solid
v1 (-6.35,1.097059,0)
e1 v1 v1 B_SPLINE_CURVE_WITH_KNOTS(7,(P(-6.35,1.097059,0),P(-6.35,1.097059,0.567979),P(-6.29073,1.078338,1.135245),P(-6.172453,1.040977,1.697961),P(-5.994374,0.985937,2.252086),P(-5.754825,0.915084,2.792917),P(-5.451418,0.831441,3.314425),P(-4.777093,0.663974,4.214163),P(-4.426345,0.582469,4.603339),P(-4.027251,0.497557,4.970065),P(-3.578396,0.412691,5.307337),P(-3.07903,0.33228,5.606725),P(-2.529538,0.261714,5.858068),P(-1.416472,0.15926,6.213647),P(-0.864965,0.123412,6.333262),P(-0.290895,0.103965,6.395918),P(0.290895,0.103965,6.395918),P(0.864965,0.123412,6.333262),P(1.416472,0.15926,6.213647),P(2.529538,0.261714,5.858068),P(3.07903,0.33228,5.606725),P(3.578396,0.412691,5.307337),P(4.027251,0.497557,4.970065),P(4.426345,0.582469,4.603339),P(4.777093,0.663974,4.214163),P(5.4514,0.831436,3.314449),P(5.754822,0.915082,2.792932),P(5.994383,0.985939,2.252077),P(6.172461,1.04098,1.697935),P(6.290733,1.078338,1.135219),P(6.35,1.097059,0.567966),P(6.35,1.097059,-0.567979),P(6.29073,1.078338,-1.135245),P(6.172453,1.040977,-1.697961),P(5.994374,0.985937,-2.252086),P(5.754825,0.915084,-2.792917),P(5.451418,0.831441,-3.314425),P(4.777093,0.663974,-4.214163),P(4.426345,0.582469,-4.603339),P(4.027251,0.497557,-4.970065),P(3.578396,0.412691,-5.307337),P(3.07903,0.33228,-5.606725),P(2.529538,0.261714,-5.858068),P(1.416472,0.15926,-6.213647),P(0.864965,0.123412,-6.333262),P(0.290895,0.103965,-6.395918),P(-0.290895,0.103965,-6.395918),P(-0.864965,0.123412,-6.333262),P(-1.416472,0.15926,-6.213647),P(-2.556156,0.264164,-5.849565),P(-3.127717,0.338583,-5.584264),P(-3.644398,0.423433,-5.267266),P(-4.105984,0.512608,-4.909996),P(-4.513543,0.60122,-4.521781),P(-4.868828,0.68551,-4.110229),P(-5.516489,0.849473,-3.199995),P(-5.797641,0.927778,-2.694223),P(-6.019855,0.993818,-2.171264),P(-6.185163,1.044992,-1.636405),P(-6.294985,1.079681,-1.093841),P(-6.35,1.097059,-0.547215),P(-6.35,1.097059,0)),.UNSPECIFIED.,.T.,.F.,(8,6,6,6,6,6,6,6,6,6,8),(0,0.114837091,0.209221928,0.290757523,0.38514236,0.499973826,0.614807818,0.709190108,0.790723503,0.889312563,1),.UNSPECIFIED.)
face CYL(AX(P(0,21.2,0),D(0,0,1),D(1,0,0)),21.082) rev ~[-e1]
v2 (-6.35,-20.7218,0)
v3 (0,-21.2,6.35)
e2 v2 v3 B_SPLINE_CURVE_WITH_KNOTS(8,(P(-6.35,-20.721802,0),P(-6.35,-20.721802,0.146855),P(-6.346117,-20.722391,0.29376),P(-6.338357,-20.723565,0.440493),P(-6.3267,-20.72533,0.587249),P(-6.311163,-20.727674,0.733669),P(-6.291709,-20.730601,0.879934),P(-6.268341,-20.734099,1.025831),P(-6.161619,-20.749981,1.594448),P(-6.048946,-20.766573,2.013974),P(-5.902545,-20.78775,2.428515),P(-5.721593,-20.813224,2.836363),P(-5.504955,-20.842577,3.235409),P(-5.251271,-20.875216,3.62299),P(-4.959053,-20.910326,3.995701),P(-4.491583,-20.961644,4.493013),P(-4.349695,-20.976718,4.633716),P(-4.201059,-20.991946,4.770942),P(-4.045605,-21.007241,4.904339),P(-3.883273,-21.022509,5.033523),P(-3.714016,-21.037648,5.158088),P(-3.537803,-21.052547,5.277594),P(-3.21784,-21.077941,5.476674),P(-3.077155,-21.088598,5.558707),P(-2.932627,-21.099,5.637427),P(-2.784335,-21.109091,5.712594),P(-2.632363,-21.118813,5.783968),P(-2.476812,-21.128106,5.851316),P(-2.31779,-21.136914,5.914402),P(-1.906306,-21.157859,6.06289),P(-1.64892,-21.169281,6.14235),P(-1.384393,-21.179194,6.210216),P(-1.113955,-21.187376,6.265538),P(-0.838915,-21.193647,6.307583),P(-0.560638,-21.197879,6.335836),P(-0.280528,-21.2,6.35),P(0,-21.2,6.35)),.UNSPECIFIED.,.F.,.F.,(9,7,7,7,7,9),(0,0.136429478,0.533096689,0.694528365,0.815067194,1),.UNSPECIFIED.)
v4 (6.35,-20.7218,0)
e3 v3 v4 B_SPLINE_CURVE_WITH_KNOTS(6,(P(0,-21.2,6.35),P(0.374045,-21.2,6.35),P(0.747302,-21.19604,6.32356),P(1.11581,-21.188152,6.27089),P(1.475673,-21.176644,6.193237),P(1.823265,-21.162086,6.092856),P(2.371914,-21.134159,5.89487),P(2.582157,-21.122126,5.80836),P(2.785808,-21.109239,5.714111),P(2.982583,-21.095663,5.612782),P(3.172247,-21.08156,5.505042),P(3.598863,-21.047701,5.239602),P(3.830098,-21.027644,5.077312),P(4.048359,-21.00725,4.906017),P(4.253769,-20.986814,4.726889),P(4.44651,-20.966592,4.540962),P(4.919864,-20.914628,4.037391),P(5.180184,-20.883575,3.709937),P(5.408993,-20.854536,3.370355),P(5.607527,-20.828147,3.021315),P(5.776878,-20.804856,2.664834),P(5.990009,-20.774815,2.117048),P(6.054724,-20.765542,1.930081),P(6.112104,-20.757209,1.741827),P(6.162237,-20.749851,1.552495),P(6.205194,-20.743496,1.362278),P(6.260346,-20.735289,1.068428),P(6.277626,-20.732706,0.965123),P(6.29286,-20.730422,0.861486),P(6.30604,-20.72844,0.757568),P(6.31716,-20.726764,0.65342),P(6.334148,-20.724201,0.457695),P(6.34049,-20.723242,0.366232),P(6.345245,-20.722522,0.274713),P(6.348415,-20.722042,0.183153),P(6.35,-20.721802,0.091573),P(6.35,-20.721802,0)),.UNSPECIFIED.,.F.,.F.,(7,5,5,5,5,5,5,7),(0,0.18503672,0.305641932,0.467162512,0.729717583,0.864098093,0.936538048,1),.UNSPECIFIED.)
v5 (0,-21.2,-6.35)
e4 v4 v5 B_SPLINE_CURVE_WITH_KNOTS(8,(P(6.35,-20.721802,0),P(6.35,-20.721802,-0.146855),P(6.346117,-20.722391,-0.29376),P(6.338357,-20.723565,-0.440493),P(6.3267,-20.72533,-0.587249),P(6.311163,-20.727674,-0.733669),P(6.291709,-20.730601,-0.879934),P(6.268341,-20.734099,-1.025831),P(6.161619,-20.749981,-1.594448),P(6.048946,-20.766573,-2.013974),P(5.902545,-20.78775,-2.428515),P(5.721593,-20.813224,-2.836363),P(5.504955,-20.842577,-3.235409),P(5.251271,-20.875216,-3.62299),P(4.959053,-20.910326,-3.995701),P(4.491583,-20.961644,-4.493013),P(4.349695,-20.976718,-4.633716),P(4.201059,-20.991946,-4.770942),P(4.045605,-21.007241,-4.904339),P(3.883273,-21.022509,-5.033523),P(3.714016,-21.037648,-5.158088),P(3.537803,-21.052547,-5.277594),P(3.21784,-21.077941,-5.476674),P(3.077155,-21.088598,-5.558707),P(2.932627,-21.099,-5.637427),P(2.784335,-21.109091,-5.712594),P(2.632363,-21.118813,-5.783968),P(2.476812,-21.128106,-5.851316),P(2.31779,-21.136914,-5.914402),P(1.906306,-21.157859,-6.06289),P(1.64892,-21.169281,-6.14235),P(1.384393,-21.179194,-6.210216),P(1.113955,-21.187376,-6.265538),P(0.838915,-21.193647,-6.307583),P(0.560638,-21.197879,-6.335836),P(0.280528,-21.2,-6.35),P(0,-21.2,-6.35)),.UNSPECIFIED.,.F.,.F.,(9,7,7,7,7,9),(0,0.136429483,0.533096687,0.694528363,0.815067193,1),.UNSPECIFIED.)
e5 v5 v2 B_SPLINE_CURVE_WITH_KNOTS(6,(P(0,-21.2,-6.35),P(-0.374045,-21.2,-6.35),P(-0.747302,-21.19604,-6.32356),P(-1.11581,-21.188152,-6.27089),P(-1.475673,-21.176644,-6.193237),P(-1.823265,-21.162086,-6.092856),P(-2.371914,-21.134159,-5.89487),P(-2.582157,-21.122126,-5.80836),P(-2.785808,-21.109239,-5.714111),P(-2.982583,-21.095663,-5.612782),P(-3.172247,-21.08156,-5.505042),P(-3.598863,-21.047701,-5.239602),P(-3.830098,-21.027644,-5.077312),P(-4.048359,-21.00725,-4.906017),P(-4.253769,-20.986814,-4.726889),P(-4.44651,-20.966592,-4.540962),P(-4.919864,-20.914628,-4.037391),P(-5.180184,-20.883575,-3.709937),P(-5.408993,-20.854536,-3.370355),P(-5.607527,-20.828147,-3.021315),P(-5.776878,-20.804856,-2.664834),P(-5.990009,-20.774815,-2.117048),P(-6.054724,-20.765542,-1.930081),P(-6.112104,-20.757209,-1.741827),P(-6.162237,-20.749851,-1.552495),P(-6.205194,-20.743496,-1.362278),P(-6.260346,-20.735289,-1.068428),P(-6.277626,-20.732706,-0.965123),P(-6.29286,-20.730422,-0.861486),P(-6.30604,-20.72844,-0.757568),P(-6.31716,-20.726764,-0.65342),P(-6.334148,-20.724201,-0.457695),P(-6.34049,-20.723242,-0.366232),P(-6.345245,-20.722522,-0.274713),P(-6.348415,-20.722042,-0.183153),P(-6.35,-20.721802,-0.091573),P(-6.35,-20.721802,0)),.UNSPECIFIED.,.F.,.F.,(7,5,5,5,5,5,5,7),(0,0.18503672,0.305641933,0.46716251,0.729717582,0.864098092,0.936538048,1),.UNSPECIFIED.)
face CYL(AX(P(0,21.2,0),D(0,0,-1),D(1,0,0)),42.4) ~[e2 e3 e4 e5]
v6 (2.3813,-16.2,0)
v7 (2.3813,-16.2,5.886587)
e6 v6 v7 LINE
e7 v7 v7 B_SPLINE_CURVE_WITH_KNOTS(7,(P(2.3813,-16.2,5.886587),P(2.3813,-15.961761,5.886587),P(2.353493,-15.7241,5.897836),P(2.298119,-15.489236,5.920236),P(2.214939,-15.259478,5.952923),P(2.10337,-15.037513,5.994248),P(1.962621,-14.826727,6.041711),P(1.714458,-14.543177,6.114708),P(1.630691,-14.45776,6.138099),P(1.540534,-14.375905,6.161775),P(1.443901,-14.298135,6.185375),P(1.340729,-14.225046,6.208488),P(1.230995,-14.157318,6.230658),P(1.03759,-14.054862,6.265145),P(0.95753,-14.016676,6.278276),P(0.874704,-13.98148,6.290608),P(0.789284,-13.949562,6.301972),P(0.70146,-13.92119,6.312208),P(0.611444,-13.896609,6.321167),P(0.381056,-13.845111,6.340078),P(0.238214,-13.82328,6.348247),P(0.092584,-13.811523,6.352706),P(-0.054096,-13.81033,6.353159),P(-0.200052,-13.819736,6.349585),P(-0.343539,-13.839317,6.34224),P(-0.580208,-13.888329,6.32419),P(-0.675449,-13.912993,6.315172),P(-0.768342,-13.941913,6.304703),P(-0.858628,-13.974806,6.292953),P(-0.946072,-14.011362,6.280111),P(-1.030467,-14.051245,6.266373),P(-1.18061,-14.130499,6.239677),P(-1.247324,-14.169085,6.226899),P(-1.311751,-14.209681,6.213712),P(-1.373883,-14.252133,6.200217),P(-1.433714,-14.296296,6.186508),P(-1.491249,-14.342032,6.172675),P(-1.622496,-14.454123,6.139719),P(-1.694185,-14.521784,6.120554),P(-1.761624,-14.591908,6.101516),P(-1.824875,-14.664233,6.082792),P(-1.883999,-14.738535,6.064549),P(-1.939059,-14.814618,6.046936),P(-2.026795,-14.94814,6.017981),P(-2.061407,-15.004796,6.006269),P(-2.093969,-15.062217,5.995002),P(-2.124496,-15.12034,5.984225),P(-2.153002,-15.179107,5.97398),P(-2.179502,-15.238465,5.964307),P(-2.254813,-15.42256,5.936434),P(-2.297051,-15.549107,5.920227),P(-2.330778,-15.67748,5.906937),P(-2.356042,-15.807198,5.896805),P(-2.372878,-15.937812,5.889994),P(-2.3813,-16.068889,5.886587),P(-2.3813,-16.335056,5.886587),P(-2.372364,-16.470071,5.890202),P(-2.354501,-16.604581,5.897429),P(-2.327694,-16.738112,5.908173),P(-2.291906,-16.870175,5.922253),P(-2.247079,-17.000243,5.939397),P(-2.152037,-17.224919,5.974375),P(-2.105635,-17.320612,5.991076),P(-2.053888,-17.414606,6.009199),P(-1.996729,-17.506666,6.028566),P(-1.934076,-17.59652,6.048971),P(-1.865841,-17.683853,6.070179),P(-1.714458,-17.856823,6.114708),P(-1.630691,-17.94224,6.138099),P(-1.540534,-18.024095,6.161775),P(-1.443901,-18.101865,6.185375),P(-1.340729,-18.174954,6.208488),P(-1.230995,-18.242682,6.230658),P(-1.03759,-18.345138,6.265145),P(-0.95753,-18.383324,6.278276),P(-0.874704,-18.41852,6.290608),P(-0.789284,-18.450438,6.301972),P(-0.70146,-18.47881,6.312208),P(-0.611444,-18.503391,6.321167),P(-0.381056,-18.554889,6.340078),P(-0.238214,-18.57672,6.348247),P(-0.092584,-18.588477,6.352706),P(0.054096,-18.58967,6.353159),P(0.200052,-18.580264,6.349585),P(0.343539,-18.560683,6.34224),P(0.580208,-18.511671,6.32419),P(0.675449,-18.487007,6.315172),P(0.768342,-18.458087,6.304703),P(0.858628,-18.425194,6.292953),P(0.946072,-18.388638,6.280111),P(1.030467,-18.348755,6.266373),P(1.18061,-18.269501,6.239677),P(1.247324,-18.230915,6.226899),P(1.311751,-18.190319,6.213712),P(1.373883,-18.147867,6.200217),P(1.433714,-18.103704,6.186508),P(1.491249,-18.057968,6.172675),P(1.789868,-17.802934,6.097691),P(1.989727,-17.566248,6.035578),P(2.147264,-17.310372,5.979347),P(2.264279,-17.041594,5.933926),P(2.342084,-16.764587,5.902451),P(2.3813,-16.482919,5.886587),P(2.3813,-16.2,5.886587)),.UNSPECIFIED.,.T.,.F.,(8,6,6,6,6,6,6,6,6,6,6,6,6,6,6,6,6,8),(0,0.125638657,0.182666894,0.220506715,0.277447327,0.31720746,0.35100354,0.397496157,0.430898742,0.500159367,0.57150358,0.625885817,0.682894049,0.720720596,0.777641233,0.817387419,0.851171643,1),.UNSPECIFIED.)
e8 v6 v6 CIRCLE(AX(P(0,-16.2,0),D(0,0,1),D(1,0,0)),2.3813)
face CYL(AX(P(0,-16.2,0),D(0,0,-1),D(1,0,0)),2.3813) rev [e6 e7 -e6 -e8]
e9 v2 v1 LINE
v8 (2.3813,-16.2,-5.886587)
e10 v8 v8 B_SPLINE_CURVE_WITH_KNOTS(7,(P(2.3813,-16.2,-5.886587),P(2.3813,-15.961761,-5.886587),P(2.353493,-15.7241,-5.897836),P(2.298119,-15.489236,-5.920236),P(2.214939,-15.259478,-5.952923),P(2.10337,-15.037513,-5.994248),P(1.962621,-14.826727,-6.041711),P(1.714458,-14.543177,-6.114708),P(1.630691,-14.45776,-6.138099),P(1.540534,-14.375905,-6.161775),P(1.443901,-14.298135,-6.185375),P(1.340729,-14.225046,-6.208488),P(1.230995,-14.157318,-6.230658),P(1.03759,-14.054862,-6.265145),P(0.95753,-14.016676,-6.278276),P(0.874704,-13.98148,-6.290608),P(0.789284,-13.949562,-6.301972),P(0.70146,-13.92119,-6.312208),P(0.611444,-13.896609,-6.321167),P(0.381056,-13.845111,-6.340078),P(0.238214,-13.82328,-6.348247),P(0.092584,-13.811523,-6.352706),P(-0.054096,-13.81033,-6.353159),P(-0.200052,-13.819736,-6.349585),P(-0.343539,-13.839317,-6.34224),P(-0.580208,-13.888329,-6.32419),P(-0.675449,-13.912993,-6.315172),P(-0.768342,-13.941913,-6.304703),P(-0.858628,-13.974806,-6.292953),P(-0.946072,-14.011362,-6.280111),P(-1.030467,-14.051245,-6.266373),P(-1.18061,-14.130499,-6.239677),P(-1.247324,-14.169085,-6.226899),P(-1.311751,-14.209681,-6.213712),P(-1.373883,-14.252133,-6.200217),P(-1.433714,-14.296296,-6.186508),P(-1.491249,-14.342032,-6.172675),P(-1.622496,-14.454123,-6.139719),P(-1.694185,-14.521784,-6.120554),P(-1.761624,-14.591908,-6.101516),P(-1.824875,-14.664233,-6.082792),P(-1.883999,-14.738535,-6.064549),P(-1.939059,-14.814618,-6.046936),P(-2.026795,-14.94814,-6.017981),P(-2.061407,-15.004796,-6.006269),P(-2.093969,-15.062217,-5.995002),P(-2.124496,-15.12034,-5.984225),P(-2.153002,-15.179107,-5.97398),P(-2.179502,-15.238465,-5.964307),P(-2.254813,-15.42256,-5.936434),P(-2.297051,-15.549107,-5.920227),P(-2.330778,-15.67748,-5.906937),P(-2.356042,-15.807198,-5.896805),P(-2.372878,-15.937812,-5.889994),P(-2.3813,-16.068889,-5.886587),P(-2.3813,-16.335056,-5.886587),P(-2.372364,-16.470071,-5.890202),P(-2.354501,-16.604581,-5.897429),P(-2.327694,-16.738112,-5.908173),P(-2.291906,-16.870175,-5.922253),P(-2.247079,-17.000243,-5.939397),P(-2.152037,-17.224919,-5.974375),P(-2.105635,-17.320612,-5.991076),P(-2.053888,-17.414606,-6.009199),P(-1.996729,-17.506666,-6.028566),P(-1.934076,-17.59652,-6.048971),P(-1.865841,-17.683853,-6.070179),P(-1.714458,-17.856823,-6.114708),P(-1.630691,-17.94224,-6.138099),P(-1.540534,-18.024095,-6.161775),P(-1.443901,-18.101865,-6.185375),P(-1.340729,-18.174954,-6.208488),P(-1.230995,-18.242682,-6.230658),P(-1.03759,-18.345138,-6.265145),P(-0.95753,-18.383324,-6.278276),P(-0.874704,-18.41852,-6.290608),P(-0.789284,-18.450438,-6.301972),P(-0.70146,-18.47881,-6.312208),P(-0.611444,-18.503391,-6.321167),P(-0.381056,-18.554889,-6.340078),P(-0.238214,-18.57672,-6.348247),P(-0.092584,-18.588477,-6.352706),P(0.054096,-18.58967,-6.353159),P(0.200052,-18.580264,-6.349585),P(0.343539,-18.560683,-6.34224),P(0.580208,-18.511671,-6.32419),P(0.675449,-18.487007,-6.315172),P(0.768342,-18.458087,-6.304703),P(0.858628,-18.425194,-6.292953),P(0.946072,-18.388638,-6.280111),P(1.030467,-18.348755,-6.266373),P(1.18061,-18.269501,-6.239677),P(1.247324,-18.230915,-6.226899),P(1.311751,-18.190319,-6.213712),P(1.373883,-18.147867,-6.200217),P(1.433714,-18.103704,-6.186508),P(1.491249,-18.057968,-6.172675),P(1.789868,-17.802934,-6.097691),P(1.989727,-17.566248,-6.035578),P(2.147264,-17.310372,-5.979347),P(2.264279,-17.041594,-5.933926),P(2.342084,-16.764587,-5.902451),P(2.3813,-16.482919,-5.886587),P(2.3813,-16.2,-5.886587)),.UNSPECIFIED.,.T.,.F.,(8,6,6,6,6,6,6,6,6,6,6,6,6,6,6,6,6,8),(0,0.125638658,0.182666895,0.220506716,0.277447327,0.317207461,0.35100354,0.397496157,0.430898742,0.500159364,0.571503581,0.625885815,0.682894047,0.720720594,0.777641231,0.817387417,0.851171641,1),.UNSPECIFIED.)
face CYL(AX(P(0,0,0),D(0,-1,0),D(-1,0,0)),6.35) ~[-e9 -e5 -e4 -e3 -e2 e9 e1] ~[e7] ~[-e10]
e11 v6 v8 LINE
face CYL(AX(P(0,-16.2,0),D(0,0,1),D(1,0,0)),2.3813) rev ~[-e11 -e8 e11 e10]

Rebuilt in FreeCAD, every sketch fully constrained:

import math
import FreeCAD as App
import Part
import Sketcher

V = App.Vector
Q = App.Units.Quantity

doc = App.newDocument("Part")
params = doc.addObject("Spreadsheet::Sheet", "Params")
for row, (alias, value) in enumerate([
    ("sketch1_diameter", "0.5 in"),
    ("pad1_length", "1.6692913 in"),
    ("sketch2_diameter", "1.66 in"),
    ("sketch2_diameter2", "0.1875 in"),
    ("sketch2_width", "0.25 in"),
    ("pocket1_length", "7.35 mm"),
    ("pocket1_length2", "7.35 mm"),
], start=1):
    params.set(f"A{row}", alias)
    params.set(f"B{row}", "=" + value)
    params.setAlias(f"B{row}", alias)

body = doc.addObject("PartDesign::Body", "Body")

# Sketch on XZ plane
sketch1 = body.newObject("Sketcher::SketchObject", "Sketch")
sketch1.AttachmentSupport = (doc.getObject("XZ_Plane"), [""])
sketch1.MapMode = "FlatFace"
sketch1.addGeometry(Part.Circle(V(0, 0, 0), V(0, 0, 1), 6), False)
sketch1.addConstraint([
    Sketcher.Constraint("Coincident", 0, 3, -1, 1),
    Sketcher.Constraint("Diameter", 0, Q("0.5 in")),
])
sketch1.setExpression("Constraints[1]", "Params.sketch1_diameter")
pad1 = body.newObject("PartDesign::Pad", "Pad")
pad1.Profile = sketch1
pad1.setExpression("Length", "Params.pad1_length")
pad1.Midplane = True

# Sketch on XY plane
sketch2 = body.newObject("Sketcher::SketchObject", "Sketch001")
sketch2.AttachmentSupport = (doc.getObject("XY_Plane"), [""])
sketch2.MapMode = "FlatFace"
sketch2.addGeometry([
    Part.Circle(V(0, 21.2, 0), V(0, 0, 1), 21.08),  # 0
    Part.LineSegment(V(6.35, -21.2, 0), V(6.35, -20.72, 0)),  # 1
    Part.ArcOfCircle(Part.Circle(V(0, 21.2, 0), V(0, 0, 1), 42.4), math.radians(-90), math.radians(-81.39)),  # 2
    Part.LineSegment(V(0, -21.2, 0), V(6.35, -21.2, 0)),  # 3
    Part.ArcOfCircle(Part.Circle(V(0, 21.2, 0), V(0, 0, 1), 42.4), math.radians(-98.61), math.radians(-90)),  # 4
    Part.LineSegment(V(-6.35, -20.72, 0), V(-6.35, -21.2, 0)),  # 5
    Part.LineSegment(V(-6.35, -21.2, 0), V(0, -21.2, 0)),  # 6
    Part.Circle(V(0, -16.2, 0), V(0, 0, 1), 2.38),  # 7
], False)
sketch2.addConstraint([
    Sketcher.Constraint("Coincident", 1, 2, 2, 2),
    Sketcher.Constraint("Tangent", 2, 1, 3, 1),
    Sketcher.Constraint("Coincident", 3, 2, 1, 1),
    Sketcher.Constraint("Coincident", 4, 1, 5, 1),
    Sketcher.Constraint("Coincident", 5, 2, 6, 1),
    Sketcher.Constraint("Tangent", 6, 2, 4, 2),
    Sketcher.Constraint("Vertical", 1),
    Sketcher.Constraint("Horizontal", 3),
    Sketcher.Constraint("Vertical", 5),
    Sketcher.Constraint("Horizontal", 6),
    Sketcher.Constraint("Coincident", 2, 3, 0, 3),
    Sketcher.Constraint("Coincident", 4, 3, 0, 3),
    Sketcher.Constraint("Equal", 2, 4),
    Sketcher.Constraint("Symmetric", 1, 2, 4, 1, -2),
    Sketcher.Constraint("PointOnObject", 7, 3, -2),
    Sketcher.Constraint("Diameter", 0, Q("1.66 in")),
    Sketcher.Constraint("Diameter", 7, Q("0.1875 in")),
    Sketcher.Constraint("DistanceX", 3, 1, 3, 2, Q("0.25 in")),
    Sketcher.Constraint("Radius", 2, Q("1.6693 in")),
    Sketcher.Constraint("DistanceY", 2, 1, 7, 3, 5.0),
    Sketcher.Constraint("DistanceY", 7, 3, -1, 1, Q("0.6378 in")),
])
sketch2.setExpression("Constraints[15]", "Params.sketch2_diameter")
sketch2.setExpression("Constraints[16]", "Params.sketch2_diameter2")
sketch2.setExpression("Constraints[17]", "Params.sketch2_width")
pocket1 = body.newObject("PartDesign::Pocket", "Pocket")
pocket1.Profile = sketch2
pocket1.Type = "TwoLengths"
pocket1.setExpression("Length", "Params.pocket1_length")
pocket1.setExpression("Length2", "Params.pocket1_length2")
pocket1.Reversed = True

doc.recompute()
